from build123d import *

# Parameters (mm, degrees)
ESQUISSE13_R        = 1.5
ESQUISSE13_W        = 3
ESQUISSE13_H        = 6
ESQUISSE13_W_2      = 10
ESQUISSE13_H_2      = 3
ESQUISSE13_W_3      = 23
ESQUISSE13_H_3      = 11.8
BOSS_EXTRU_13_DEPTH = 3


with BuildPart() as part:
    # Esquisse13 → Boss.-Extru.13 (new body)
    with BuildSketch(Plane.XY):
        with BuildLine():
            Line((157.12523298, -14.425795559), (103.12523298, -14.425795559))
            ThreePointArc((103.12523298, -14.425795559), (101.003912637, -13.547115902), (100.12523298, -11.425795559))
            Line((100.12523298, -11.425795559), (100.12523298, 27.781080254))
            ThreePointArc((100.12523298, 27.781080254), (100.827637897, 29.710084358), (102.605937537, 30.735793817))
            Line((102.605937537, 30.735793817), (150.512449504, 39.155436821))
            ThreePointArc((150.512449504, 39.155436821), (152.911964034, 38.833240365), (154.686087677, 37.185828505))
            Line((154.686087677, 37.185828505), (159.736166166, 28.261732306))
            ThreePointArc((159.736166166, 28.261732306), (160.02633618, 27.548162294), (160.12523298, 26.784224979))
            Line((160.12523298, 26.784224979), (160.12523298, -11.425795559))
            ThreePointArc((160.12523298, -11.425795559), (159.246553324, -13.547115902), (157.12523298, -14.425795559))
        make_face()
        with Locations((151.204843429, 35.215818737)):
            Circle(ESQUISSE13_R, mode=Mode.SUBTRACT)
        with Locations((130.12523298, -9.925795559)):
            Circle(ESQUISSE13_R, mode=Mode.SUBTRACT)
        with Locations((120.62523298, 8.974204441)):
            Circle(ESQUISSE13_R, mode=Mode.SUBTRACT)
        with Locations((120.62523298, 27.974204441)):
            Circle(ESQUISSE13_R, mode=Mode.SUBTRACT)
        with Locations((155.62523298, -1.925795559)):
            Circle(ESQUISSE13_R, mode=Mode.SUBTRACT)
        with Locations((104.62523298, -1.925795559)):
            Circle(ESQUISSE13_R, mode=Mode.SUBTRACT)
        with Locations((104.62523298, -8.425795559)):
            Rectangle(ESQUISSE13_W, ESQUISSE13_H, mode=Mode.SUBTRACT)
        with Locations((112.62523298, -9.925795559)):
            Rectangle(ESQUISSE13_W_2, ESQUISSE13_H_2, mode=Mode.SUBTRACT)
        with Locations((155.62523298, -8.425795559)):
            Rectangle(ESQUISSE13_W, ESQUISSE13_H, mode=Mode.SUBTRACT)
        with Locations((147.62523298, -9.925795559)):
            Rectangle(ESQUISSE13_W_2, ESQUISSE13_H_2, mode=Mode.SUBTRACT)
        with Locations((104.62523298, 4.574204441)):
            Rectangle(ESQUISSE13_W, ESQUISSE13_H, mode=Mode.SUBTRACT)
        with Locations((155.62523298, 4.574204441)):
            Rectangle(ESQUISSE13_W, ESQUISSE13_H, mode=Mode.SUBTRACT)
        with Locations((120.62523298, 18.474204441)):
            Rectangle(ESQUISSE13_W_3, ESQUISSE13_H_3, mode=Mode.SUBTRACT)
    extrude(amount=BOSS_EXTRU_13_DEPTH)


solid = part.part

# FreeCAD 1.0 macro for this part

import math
import FreeCAD as App
import Part
import Sketcher

V = App.Vector
Q = App.Units.Quantity

doc = App.newDocument("Part")
body = doc.addObject("PartDesign::Body", "Body")

sketch1 = doc.addObject("Sketcher::SketchObject", "Sketch")
body.addObject(sketch1)
sketch1.AttachmentSupport = (doc.XY_Plane, [""])
sketch1.MapMode = "FlatFace"
sketch1.addGeometry([
    Part.LineSegment(V(103.1, -14.4, 0), V(157.1, -14.4, 0)),
    Part.ArcOfCircle(Part.Circle(V(157.1, -11.4, 0), V(0, 0, 1), 3), math.radians(-90), math.radians(0)),
    Part.LineSegment(V(160.1, -11.4, 0), V(160.1, 26.8, 0)),
    Part.ArcOfCircle(Part.Circle(V(157.1, 26.8, 0), V(0, 0, 1), 3), math.radians(0), math.radians(30)),
    Part.LineSegment(V(159.7, 28.3, 0), V(154.7, 37.2, 0)),
    Part.ArcOfCircle(Part.Circle(V(151.2, 35.2, 0), V(0, 0, 1), 4), math.radians(30), math.radians(100)),
    Part.LineSegment(V(150.5, 39.2, 0), V(102.6, 30.7, 0)),
    Part.ArcOfCircle(Part.Circle(V(103.1, 27.8, 0), V(0, 0, 1), 3), math.radians(100), math.radians(180)),
    Part.LineSegment(V(100.1, 27.8, 0), V(100.1, -11.4, 0)),
    Part.ArcOfCircle(Part.Circle(V(103.1, -11.4, 0), V(0, 0, 1), 3), math.radians(-180), math.radians(-90)),
    Part.LineSegment(V(154.1, -11.4, 0), V(154.1, -5.4, 0)),
    Part.LineSegment(V(154.1, -5.4, 0), V(157.1, -5.4, 0)),
    Part.LineSegment(V(157.1, -5.4, 0), V(157.1, -11.4, 0)),
    Part.LineSegment(V(157.1, -11.4, 0), V(154.1, -11.4, 0)),
    Part.LineSegment(V(142.6, -11.4, 0), V(142.6, -8.4, 0)),
    Part.LineSegment(V(142.6, -8.4, 0), V(152.6, -8.4, 0)),
    Part.LineSegment(V(152.6, -8.4, 0), V(152.6, -11.4, 0)),
    Part.LineSegment(V(152.6, -11.4, 0), V(142.6, -11.4, 0)),
    Part.Circle(V(155.6, -1.9, 0), V(0, 0, 1), 1.5),
    Part.LineSegment(V(154.1, 1.6, 0), V(154.1, 7.6, 0)),
    Part.LineSegment(V(154.1, 7.6, 0), V(157.1, 7.6, 0)),
    Part.LineSegment(V(157.1, 7.6, 0), V(157.1, 1.6, 0)),
    Part.LineSegment(V(157.1, 1.6, 0), V(154.1, 1.6, 0)),
    Part.Circle(V(130.1, -9.9, 0), V(0, 0, 1), 1.5),
    Part.LineSegment(V(107.6, -11.4, 0), V(107.6, -8.4, 0)),
    Part.LineSegment(V(107.6, -8.4, 0), V(117.6, -8.4, 0)),
    Part.LineSegment(V(117.6, -8.4, 0), V(117.6, -11.4, 0)),
    Part.LineSegment(V(117.6, -11.4, 0), V(107.6, -11.4, 0)),
    Part.LineSegment(V(103.1, -11.4, 0), V(103.1, -5.4, 0)),
    Part.LineSegment(V(103.1, -5.4, 0), V(106.1, -5.4, 0)),
    Part.LineSegment(V(106.1, -5.4, 0), V(106.1, -11.4, 0)),
    Part.LineSegment(V(106.1, -11.4, 0), V(103.1, -11.4, 0)),
    Part.Circle(V(104.6, -1.9, 0), V(0, 0, 1), 1.5),
    Part.Circle(V(120.6, 9, 0), V(0, 0, 1), 1.5),
    Part.LineSegment(V(103.1, 1.6, 0), V(103.1, 7.6, 0)),
    Part.LineSegment(V(103.1, 7.6, 0), V(106.1, 7.6, 0)),
    Part.LineSegment(V(106.1, 7.6, 0), V(106.1, 1.6, 0)),
    Part.LineSegment(V(106.1, 1.6, 0), V(103.1, 1.6, 0)),
    Part.Circle(V(151.2, 35.2, 0), V(0, 0, 1), 1.5),
    Part.LineSegment(V(109.1, 12.6, 0), V(109.1, 24.4, 0)),
    Part.LineSegment(V(109.1, 24.4, 0), V(132.1, 24.4, 0)),
    Part.LineSegment(V(132.1, 24.4, 0), V(132.1, 12.6, 0)),
    Part.LineSegment(V(132.1, 12.6, 0), V(109.1, 12.6, 0)),
    Part.Circle(V(120.6, 28, 0), V(0, 0, 1), 1.5),
], False)
sketch1.addConstraint([
    Sketcher.Constraint("Tangent", 0, 2, 1, 1),
    Sketcher.Constraint("Tangent", 1, 2, 2, 1),
    Sketcher.Constraint("Tangent", 2, 2, 3, 1),
    Sketcher.Constraint("Tangent", 3, 2, 4, 1),
    Sketcher.Constraint("Tangent", 4, 2, 5, 1),
    Sketcher.Constraint("Tangent", 5, 2, 6, 1),
    Sketcher.Constraint("Tangent", 6, 2, 7, 1),
    Sketcher.Constraint("Tangent", 7, 2, 8, 1),
    Sketcher.Constraint("Tangent", 8, 2, 9, 1),
    Sketcher.Constraint("Tangent", 9, 2, 0, 1),
    Sketcher.Constraint("Coincident", 10, 2, 11, 1),
    Sketcher.Constraint("Coincident", 11, 2, 12, 1),
    Sketcher.Constraint("Coincident", 12, 2, 13, 1),
    Sketcher.Constraint("Coincident", 13, 2, 10, 1),
    Sketcher.Constraint("Coincident", 14, 2, 15, 1),
    Sketcher.Constraint("Coincident", 15, 2, 16, 1),
    Sketcher.Constraint("Coincident", 16, 2, 17, 1),
    Sketcher.Constraint("Coincident", 17, 2, 14, 1),
    Sketcher.Constraint("Coincident", 19, 2, 20, 1),
    Sketcher.Constraint("Coincident", 20, 2, 21, 1),
    Sketcher.Constraint("Coincident", 21, 2, 22, 1),
    Sketcher.Constraint("Coincident", 22, 2, 19, 1),
    Sketcher.Constraint("Coincident", 24, 2, 25, 1),
    Sketcher.Constraint("Coincident", 25, 2, 26, 1),
    Sketcher.Constraint("Coincident", 26, 2, 27, 1),
    Sketcher.Constraint("Coincident", 27, 2, 24, 1),
    Sketcher.Constraint("Coincident", 28, 2, 29, 1),
    Sketcher.Constraint("Coincident", 29, 2, 30, 1),
    Sketcher.Constraint("Coincident", 30, 2, 31, 1),
    Sketcher.Constraint("Coincident", 31, 2, 28, 1),
    Sketcher.Constraint("Coincident", 34, 2, 35, 1),
    Sketcher.Constraint("Coincident", 35, 2, 36, 1),
    Sketcher.Constraint("Coincident", 36, 2, 37, 1),
    Sketcher.Constraint("Coincident", 37, 2, 34, 1),
    Sketcher.Constraint("Coincident", 39, 2, 40, 1),
    Sketcher.Constraint("Coincident", 40, 2, 41, 1),
    Sketcher.Constraint("Coincident", 41, 2, 42, 1),
    Sketcher.Constraint("Coincident", 42, 2, 39, 1),
    Sketcher.Constraint("Horizontal", 0),
    Sketcher.Constraint("Vertical", 2),
    Sketcher.Constraint("Vertical", 8),
    Sketcher.Constraint("Vertical", 10),
    Sketcher.Constraint("Horizontal", 11),
    Sketcher.Constraint("Vertical", 12),
    Sketcher.Constraint("Horizontal", 13),
    Sketcher.Constraint("Vertical", 14),
    Sketcher.Constraint("Horizontal", 15),
    Sketcher.Constraint("Vertical", 16),
    Sketcher.Constraint("Horizontal", 17),
    Sketcher.Constraint("Vertical", 19),
    Sketcher.Constraint("Horizontal", 20),
    Sketcher.Constraint("Vertical", 21),
    Sketcher.Constraint("Horizontal", 22),
    Sketcher.Constraint("Vertical", 24),
    Sketcher.Constraint("Horizontal", 25),
    Sketcher.Constraint("Vertical", 26),
    Sketcher.Constraint("Horizontal", 27),
    Sketcher.Constraint("Vertical", 28),
    Sketcher.Constraint("Horizontal", 29),
    Sketcher.Constraint("Vertical", 30),
    Sketcher.Constraint("Horizontal", 31),
    Sketcher.Constraint("Vertical", 34),
    Sketcher.Constraint("Horizontal", 35),
    Sketcher.Constraint("Vertical", 36),
    Sketcher.Constraint("Horizontal", 37),
    Sketcher.Constraint("Vertical", 39),
    Sketcher.Constraint("Horizontal", 40),
    Sketcher.Constraint("Vertical", 41),
    Sketcher.Constraint("Horizontal", 42),
    Sketcher.Constraint("Coincident", 38, 3, 5, 3),
    Sketcher.Constraint("Coincident", 12, 2, 1, 3),
    Sketcher.Constraint("Coincident", 31, 2, 9, 3),
    Sketcher.Constraint("Equal", 1, 3),
    Sketcher.Constraint("Equal", 3, 7),
    Sketcher.Constraint("Equal", 7, 9),
    Sketcher.Constraint("Equal", 18, 23),
    Sketcher.Constraint("Equal", 23, 32),
    Sketcher.Constraint("Equal", 32, 33),
    Sketcher.Constraint("Equal", 33, 38),
    Sketcher.Constraint("Equal", 38, 43),
    Sketcher.Constraint("Horizontal", 18, 3, 32, 3),
    Sketcher.Constraint("Horizontal", 13, 2, 16, 2),
    Sketcher.Constraint("Horizontal", 15, 2, 24, 2),
    Sketcher.Constraint("Horizontal", 17, 2, 26, 2),
    Sketcher.Constraint("Horizontal", 11, 2, 28, 2),
    Sketcher.Constraint("Horizontal", 20, 2, 34, 2),
    Sketcher.Constraint("Horizontal", 22, 2, 36, 2),
    Sketcher.Constraint("Vertical", 33, 3, 43, 3),
    Sketcher.Constraint("Vertical", 13, 2, 19, 2),
    Sketcher.Constraint("Vertical", 12, 2, 20, 2),
    Sketcher.Constraint("Vertical", 31, 2, 34, 2),
    Sketcher.Constraint("Vertical", 30, 2, 35, 2),
    Sketcher.Constraint("Equal", 17, 25),
    Sketcher.Constraint("Equal", 22, 29),
    Sketcher.Constraint("Equal", 37, 14),
    Sketcher.Constraint("Equal", 12, 19),
    Sketcher.Constraint("Diameter", 18, Q("3 mm")),
    Sketcher.Constraint("Radius", 1, Q("3 mm")),
    Sketcher.Constraint("Radius", 5, Q("4 mm")),
    Sketcher.Constraint("DistanceX", 0, 1, 0, 2, Q("54 mm")),
    Sketcher.Constraint("DistanceX", 11, 1, 11, 2, Q("3 mm")),
    Sketcher.Constraint("DistanceX", 15, 1, 15, 2, Q("10 mm")),
    Sketcher.Constraint("DistanceX", 40, 1, 40, 2, Q("23 mm")),
    Sketcher.Constraint("DistanceY", 10, 1, 10, 2, Q("6 mm")),
    Sketcher.Constraint("DistanceY", 39, 1, 39, 2, Q("11.8 mm")),
    Sketcher.Constraint("DistanceY", 23, 3, 18, 3, Q("8 mm")),
    Sketcher.Constraint("DistanceX", 9, 3, 23, 3, Q("27 mm")),
    Sketcher.Constraint("DistanceX", 32, 3, 18, 3, Q("51 mm")),
    Sketcher.Constraint("DistanceX", 32, 3, 33, 3, Q("16 mm")),
    Sketcher.Constraint("DistanceY", 33, 3, 43, 3, Q("19 mm")),
    Sketcher.Constraint("DistanceX", 14, 2, 18, 3, Q("13 mm")),
    Sketcher.Constraint("DistanceY", 10, 2, 19, 2, Q("13 mm")),
    Sketcher.Constraint("DistanceX", 32, 3, 24, 2, Q("3 mm")),
    Sketcher.Constraint("DistanceX", 7, 3, 39, 2, Q("6 mm")),
    Sketcher.Constraint("DistanceY", 19, 2, 41, 2, Q("5 mm")),
    Sketcher.Constraint("DistanceX", 18, 3, 1, 3, Q("1.5 mm")),
    Sketcher.Constraint("DistanceY", 1, 3, 18, 3, Q("9.5 mm")),
    Sketcher.Constraint("DistanceY", 32, 3, 33, 3, Q("10.9 mm")),
    Sketcher.Constraint("DistanceY", 2, 1, 2, 2, Q("38.210021 mm")),
    Sketcher.Constraint("DistanceY", 8, 2, 8, 1, Q("39.206876 mm")),
    Sketcher.Constraint("DistanceY", -1, 1, 5, 3, Q("35.215819 mm")),
    Sketcher.Constraint("DistanceY", -1, 1, 7, 3, Q("27.78108 mm")),
    Sketcher.Constraint("DistanceY", -1, 1, 4, 2, Q("37.185829 mm")),
    Sketcher.Constraint("DistanceX", -1, 1, 5, 2, Q("150.51245 mm")),
])
pad1 = doc.addObject("PartDesign::Pad", "Pad")
body.addObject(pad1)
pad1.Profile = sketch1
pad1.Length = 3

doc.recompute()
